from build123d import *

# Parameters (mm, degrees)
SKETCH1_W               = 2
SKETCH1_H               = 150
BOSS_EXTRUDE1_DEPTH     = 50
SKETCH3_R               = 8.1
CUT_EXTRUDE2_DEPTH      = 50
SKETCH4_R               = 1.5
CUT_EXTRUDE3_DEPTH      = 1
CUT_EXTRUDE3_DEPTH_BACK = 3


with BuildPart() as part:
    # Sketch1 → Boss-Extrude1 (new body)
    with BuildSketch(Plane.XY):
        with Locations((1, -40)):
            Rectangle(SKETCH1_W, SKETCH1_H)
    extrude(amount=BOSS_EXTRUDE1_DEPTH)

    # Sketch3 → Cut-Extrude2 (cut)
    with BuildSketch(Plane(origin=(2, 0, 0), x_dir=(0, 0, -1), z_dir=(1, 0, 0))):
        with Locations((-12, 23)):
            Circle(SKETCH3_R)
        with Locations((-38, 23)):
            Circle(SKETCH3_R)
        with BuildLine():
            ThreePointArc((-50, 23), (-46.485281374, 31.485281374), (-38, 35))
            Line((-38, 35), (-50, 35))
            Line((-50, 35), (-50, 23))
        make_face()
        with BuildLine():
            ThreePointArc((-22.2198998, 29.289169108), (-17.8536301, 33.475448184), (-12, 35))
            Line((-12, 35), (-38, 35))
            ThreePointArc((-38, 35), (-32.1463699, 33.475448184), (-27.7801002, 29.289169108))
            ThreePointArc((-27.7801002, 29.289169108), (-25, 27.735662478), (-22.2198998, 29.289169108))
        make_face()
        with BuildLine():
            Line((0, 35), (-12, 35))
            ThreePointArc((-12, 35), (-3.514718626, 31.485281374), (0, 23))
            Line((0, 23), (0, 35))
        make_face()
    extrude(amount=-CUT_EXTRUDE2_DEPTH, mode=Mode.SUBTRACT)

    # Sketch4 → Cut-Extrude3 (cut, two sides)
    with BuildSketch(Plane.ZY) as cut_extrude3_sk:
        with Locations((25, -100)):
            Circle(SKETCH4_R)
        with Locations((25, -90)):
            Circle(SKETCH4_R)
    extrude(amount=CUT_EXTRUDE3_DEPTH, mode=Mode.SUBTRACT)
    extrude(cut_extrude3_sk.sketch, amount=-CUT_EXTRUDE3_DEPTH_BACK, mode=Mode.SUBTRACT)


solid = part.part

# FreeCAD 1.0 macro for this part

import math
import FreeCAD as App
import Part
import Sketcher

V = App.Vector
Q = App.Units.Quantity

doc = App.newDocument("Part")
params = doc.addObject("Spreadsheet::Sheet", "Params")
for row, (alias, value) in enumerate([
    ("sketch1_width", "2 mm"),
    ("sketch1_height", "150 mm"),
    ("pad1_length", "50 mm"),
    ("sketch2_radius", "12 mm"),
    ("sketch2_diameter", "16.2 mm"),
    ("sketch2_height", "26 mm"),
    ("pocket1_length", "50 mm"),
    ("sketch3_diameter", "3 mm"),
], start=1):
    params.set(f"A{row}", alias)
    params.set(f"B{row}", "=" + value)
    params.setAlias(f"B{row}", alias)

body = doc.addObject("PartDesign::Body", "Body")

sketch1 = doc.addObject("Sketcher::SketchObject", "Sketch")
body.addObject(sketch1)
sketch1.AttachmentSupport = (doc.XY_Plane, [""])
sketch1.MapMode = "FlatFace"
sketch1.addGeometry([
    Part.LineSegment(V(0, 35, 0), V(0, -115, 0)),
    Part.LineSegment(V(0, -115, 0), V(2, -115, 0)),
    Part.LineSegment(V(2, -115, 0), V(2, 35, 0)),
    Part.LineSegment(V(2, 35, 0), V(0, 35, 0)),
], False)
sketch1.addConstraint([
    Sketcher.Constraint("Coincident", 0, 2, 1, 1),
    Sketcher.Constraint("Coincident", 1, 2, 2, 1),
    Sketcher.Constraint("Coincident", 2, 2, 3, 1),
    Sketcher.Constraint("Coincident", 3, 2, 0, 1),
    Sketcher.Constraint("Vertical", 0),
    Sketcher.Constraint("Horizontal", 1),
    Sketcher.Constraint("Vertical", 2),
    Sketcher.Constraint("Horizontal", 3),
    Sketcher.Constraint("PointOnObject", 0, 2, -2),
    Sketcher.Constraint("DistanceX", 1, 1, 1, 2, Q("2 mm")),
    Sketcher.Constraint("DistanceY", 0, 2, 0, 1, Q("150 mm")),
    Sketcher.Constraint("DistanceY", 0, 2, -1, 1, Q("115 mm")),
])
sketch1.setExpression("Constraints[9]", "Params.sketch1_width")
sketch1.setExpression("Constraints[10]", "Params.sketch1_height")
pad1 = doc.addObject("PartDesign::Pad", "Pad")
body.addObject(pad1)
pad1.Profile = sketch1
pad1.setExpression("Length", "Params.pad1_length")

sketch2 = doc.addObject("Sketcher::SketchObject", "Sketch001")
body.addObject(sketch2)
sketch2.AttachmentSupport = (doc.YZ_Plane, [""])
sketch2.MapMode = "FlatFace"
sketch2.AttachmentOffset = App.Placement(V(0, 0, 2), App.Rotation())
sketch2.addGeometry([
    Part.Circle(V(23, 12, 0), V(0, 0, 1), 8.1),
    Part.Circle(V(23, 38, 0), V(0, 0, 1), 8.1),
    Part.ArcOfCircle(Part.Circle(V(23, 38, 0), V(0, 0, 1), 12), math.radians(0), math.radians(90)),
    Part.LineSegment(V(35, 38, 0), V(35, 50, 0)),
    Part.LineSegment(V(35, 50, 0), V(23, 50, 0)),
    Part.ArcOfCircle(Part.Circle(V(23, 12, 0), V(0, 0, 1), 12), math.radians(0), math.radians(58)),
    Part.LineSegment(V(35, 12, 0), V(35, 38, 0)),
    Part.ArcOfCircle(Part.Circle(V(23, 38, 0), V(0, 0, 1), 12), math.radians(-58), math.radians(0)),
    Part.ArcOfCircle(Part.Circle(V(31, 25, 0), V(0, 0, 1), 3.3), math.radians(122), math.radians(238)),
    Part.LineSegment(V(35, 0, 0), V(35, 12, 0)),
    Part.ArcOfCircle(Part.Circle(V(23, 12, 0), V(0, 0, 1), 12), math.radians(-90), math.radians(0)),
    Part.LineSegment(V(23, 0, 0), V(35, 0, 0)),
], False)
sketch2.addConstraint([
    Sketcher.Constraint("Tangent", 2, 1, 3, 1),
    Sketcher.Constraint("Coincident", 3, 2, 4, 1),
    Sketcher.Constraint("Tangent", 4, 2, 2, 2),
    Sketcher.Constraint("Tangent", 5, 1, 6, 1),
    Sketcher.Constraint("Tangent", 6, 2, 7, 2),
    Sketcher.Constraint("Tangent", 7, 1, 8, 1),
    Sketcher.Constraint("Tangent", 8, 2, 5, 2),
    Sketcher.Constraint("Tangent", 9, 2, 10, 2),
    Sketcher.Constraint("Tangent", 10, 1, 11, 1),
    Sketcher.Constraint("Coincident", 11, 2, 9, 1),
    Sketcher.Constraint("Vertical", 3),
    Sketcher.Constraint("Horizontal", 4),
    Sketcher.Constraint("Vertical", 6),
    Sketcher.Constraint("Vertical", 9),
    Sketcher.Constraint("Horizontal", 11),
    Sketcher.Constraint("Coincident", 2, 3, 1, 3),
    Sketcher.Constraint("Coincident", 5, 3, 0, 3),
    Sketcher.Constraint("Coincident", 7, 3, 1, 3),
    Sketcher.Constraint("Coincident", 10, 3, 0, 3),
    Sketcher.Constraint("Equal", 0, 1),
    Sketcher.Constraint("Equal", 2, 5),
    Sketcher.Constraint("Equal", 5, 7),
    Sketcher.Constraint("Equal", 7, 10),
    Sketcher.Constraint("PointOnObject", 10, 1, -1),
    Sketcher.Constraint("Radius", 2, Q("12 mm")),
    Sketcher.Constraint("Diameter", 0, Q("16.2 mm")),
    Sketcher.Constraint("DistanceY", 6, 1, 6, 2, Q("26 mm")),
    Sketcher.Constraint("DistanceX", -1, 1, 0, 3, Q("23 mm")),
    Sketcher.Constraint("DistanceX", -1, 1, 8, 3, Q("31 mm")),
])
sketch2.setExpression("Constraints[24]", "Params.sketch2_radius")
sketch2.setExpression("Constraints[25]", "Params.sketch2_diameter")
sketch2.setExpression("Constraints[26]", "Params.sketch2_height")
pocket1 = doc.addObject("PartDesign::Pocket", "Pocket")
body.addObject(pocket1)
pocket1.Profile = sketch2
pocket1.setExpression("Length", "Params.pocket1_length")

sketch3 = doc.addObject("Sketcher::SketchObject", "Sketch002")
body.addObject(sketch3)
sketch3.AttachmentSupport = (doc.YZ_Plane, [""])
sketch3.MapMode = "FlatFace"
sketch3.addGeometry([
    Part.Circle(V(-100, 25, 0), V(0, 0, 1), 1.5),
    Part.Circle(V(-90, 25, 0), V(0, 0, 1), 1.5),
], False)
sketch3.addConstraint([
    Sketcher.Constraint("Equal", 0, 1),
    Sketcher.Constraint("Horizontal", 0, 3, 1, 3),
    Sketcher.Constraint("Diameter", 0, Q("3 mm")),
    Sketcher.Constraint("DistanceX", 0, 3, -1, 1, Q("100 mm")),
    Sketcher.Constraint("DistanceY", -1, 1, 0, 3, Q("25 mm")),
    Sketcher.Constraint("DistanceX", 1, 3, -1, 1, Q("90 mm")),
])
sketch3.setExpression("Constraints[2]", "Params.sketch3_diameter")
pocket2 = doc.addObject("PartDesign::Pocket", "Pocket001")
body.addObject(pocket2)
pocket2.Profile = sketch3
pocket2.Type = "ThroughAll"
pocket2.Midplane = True

doc.recompute()
